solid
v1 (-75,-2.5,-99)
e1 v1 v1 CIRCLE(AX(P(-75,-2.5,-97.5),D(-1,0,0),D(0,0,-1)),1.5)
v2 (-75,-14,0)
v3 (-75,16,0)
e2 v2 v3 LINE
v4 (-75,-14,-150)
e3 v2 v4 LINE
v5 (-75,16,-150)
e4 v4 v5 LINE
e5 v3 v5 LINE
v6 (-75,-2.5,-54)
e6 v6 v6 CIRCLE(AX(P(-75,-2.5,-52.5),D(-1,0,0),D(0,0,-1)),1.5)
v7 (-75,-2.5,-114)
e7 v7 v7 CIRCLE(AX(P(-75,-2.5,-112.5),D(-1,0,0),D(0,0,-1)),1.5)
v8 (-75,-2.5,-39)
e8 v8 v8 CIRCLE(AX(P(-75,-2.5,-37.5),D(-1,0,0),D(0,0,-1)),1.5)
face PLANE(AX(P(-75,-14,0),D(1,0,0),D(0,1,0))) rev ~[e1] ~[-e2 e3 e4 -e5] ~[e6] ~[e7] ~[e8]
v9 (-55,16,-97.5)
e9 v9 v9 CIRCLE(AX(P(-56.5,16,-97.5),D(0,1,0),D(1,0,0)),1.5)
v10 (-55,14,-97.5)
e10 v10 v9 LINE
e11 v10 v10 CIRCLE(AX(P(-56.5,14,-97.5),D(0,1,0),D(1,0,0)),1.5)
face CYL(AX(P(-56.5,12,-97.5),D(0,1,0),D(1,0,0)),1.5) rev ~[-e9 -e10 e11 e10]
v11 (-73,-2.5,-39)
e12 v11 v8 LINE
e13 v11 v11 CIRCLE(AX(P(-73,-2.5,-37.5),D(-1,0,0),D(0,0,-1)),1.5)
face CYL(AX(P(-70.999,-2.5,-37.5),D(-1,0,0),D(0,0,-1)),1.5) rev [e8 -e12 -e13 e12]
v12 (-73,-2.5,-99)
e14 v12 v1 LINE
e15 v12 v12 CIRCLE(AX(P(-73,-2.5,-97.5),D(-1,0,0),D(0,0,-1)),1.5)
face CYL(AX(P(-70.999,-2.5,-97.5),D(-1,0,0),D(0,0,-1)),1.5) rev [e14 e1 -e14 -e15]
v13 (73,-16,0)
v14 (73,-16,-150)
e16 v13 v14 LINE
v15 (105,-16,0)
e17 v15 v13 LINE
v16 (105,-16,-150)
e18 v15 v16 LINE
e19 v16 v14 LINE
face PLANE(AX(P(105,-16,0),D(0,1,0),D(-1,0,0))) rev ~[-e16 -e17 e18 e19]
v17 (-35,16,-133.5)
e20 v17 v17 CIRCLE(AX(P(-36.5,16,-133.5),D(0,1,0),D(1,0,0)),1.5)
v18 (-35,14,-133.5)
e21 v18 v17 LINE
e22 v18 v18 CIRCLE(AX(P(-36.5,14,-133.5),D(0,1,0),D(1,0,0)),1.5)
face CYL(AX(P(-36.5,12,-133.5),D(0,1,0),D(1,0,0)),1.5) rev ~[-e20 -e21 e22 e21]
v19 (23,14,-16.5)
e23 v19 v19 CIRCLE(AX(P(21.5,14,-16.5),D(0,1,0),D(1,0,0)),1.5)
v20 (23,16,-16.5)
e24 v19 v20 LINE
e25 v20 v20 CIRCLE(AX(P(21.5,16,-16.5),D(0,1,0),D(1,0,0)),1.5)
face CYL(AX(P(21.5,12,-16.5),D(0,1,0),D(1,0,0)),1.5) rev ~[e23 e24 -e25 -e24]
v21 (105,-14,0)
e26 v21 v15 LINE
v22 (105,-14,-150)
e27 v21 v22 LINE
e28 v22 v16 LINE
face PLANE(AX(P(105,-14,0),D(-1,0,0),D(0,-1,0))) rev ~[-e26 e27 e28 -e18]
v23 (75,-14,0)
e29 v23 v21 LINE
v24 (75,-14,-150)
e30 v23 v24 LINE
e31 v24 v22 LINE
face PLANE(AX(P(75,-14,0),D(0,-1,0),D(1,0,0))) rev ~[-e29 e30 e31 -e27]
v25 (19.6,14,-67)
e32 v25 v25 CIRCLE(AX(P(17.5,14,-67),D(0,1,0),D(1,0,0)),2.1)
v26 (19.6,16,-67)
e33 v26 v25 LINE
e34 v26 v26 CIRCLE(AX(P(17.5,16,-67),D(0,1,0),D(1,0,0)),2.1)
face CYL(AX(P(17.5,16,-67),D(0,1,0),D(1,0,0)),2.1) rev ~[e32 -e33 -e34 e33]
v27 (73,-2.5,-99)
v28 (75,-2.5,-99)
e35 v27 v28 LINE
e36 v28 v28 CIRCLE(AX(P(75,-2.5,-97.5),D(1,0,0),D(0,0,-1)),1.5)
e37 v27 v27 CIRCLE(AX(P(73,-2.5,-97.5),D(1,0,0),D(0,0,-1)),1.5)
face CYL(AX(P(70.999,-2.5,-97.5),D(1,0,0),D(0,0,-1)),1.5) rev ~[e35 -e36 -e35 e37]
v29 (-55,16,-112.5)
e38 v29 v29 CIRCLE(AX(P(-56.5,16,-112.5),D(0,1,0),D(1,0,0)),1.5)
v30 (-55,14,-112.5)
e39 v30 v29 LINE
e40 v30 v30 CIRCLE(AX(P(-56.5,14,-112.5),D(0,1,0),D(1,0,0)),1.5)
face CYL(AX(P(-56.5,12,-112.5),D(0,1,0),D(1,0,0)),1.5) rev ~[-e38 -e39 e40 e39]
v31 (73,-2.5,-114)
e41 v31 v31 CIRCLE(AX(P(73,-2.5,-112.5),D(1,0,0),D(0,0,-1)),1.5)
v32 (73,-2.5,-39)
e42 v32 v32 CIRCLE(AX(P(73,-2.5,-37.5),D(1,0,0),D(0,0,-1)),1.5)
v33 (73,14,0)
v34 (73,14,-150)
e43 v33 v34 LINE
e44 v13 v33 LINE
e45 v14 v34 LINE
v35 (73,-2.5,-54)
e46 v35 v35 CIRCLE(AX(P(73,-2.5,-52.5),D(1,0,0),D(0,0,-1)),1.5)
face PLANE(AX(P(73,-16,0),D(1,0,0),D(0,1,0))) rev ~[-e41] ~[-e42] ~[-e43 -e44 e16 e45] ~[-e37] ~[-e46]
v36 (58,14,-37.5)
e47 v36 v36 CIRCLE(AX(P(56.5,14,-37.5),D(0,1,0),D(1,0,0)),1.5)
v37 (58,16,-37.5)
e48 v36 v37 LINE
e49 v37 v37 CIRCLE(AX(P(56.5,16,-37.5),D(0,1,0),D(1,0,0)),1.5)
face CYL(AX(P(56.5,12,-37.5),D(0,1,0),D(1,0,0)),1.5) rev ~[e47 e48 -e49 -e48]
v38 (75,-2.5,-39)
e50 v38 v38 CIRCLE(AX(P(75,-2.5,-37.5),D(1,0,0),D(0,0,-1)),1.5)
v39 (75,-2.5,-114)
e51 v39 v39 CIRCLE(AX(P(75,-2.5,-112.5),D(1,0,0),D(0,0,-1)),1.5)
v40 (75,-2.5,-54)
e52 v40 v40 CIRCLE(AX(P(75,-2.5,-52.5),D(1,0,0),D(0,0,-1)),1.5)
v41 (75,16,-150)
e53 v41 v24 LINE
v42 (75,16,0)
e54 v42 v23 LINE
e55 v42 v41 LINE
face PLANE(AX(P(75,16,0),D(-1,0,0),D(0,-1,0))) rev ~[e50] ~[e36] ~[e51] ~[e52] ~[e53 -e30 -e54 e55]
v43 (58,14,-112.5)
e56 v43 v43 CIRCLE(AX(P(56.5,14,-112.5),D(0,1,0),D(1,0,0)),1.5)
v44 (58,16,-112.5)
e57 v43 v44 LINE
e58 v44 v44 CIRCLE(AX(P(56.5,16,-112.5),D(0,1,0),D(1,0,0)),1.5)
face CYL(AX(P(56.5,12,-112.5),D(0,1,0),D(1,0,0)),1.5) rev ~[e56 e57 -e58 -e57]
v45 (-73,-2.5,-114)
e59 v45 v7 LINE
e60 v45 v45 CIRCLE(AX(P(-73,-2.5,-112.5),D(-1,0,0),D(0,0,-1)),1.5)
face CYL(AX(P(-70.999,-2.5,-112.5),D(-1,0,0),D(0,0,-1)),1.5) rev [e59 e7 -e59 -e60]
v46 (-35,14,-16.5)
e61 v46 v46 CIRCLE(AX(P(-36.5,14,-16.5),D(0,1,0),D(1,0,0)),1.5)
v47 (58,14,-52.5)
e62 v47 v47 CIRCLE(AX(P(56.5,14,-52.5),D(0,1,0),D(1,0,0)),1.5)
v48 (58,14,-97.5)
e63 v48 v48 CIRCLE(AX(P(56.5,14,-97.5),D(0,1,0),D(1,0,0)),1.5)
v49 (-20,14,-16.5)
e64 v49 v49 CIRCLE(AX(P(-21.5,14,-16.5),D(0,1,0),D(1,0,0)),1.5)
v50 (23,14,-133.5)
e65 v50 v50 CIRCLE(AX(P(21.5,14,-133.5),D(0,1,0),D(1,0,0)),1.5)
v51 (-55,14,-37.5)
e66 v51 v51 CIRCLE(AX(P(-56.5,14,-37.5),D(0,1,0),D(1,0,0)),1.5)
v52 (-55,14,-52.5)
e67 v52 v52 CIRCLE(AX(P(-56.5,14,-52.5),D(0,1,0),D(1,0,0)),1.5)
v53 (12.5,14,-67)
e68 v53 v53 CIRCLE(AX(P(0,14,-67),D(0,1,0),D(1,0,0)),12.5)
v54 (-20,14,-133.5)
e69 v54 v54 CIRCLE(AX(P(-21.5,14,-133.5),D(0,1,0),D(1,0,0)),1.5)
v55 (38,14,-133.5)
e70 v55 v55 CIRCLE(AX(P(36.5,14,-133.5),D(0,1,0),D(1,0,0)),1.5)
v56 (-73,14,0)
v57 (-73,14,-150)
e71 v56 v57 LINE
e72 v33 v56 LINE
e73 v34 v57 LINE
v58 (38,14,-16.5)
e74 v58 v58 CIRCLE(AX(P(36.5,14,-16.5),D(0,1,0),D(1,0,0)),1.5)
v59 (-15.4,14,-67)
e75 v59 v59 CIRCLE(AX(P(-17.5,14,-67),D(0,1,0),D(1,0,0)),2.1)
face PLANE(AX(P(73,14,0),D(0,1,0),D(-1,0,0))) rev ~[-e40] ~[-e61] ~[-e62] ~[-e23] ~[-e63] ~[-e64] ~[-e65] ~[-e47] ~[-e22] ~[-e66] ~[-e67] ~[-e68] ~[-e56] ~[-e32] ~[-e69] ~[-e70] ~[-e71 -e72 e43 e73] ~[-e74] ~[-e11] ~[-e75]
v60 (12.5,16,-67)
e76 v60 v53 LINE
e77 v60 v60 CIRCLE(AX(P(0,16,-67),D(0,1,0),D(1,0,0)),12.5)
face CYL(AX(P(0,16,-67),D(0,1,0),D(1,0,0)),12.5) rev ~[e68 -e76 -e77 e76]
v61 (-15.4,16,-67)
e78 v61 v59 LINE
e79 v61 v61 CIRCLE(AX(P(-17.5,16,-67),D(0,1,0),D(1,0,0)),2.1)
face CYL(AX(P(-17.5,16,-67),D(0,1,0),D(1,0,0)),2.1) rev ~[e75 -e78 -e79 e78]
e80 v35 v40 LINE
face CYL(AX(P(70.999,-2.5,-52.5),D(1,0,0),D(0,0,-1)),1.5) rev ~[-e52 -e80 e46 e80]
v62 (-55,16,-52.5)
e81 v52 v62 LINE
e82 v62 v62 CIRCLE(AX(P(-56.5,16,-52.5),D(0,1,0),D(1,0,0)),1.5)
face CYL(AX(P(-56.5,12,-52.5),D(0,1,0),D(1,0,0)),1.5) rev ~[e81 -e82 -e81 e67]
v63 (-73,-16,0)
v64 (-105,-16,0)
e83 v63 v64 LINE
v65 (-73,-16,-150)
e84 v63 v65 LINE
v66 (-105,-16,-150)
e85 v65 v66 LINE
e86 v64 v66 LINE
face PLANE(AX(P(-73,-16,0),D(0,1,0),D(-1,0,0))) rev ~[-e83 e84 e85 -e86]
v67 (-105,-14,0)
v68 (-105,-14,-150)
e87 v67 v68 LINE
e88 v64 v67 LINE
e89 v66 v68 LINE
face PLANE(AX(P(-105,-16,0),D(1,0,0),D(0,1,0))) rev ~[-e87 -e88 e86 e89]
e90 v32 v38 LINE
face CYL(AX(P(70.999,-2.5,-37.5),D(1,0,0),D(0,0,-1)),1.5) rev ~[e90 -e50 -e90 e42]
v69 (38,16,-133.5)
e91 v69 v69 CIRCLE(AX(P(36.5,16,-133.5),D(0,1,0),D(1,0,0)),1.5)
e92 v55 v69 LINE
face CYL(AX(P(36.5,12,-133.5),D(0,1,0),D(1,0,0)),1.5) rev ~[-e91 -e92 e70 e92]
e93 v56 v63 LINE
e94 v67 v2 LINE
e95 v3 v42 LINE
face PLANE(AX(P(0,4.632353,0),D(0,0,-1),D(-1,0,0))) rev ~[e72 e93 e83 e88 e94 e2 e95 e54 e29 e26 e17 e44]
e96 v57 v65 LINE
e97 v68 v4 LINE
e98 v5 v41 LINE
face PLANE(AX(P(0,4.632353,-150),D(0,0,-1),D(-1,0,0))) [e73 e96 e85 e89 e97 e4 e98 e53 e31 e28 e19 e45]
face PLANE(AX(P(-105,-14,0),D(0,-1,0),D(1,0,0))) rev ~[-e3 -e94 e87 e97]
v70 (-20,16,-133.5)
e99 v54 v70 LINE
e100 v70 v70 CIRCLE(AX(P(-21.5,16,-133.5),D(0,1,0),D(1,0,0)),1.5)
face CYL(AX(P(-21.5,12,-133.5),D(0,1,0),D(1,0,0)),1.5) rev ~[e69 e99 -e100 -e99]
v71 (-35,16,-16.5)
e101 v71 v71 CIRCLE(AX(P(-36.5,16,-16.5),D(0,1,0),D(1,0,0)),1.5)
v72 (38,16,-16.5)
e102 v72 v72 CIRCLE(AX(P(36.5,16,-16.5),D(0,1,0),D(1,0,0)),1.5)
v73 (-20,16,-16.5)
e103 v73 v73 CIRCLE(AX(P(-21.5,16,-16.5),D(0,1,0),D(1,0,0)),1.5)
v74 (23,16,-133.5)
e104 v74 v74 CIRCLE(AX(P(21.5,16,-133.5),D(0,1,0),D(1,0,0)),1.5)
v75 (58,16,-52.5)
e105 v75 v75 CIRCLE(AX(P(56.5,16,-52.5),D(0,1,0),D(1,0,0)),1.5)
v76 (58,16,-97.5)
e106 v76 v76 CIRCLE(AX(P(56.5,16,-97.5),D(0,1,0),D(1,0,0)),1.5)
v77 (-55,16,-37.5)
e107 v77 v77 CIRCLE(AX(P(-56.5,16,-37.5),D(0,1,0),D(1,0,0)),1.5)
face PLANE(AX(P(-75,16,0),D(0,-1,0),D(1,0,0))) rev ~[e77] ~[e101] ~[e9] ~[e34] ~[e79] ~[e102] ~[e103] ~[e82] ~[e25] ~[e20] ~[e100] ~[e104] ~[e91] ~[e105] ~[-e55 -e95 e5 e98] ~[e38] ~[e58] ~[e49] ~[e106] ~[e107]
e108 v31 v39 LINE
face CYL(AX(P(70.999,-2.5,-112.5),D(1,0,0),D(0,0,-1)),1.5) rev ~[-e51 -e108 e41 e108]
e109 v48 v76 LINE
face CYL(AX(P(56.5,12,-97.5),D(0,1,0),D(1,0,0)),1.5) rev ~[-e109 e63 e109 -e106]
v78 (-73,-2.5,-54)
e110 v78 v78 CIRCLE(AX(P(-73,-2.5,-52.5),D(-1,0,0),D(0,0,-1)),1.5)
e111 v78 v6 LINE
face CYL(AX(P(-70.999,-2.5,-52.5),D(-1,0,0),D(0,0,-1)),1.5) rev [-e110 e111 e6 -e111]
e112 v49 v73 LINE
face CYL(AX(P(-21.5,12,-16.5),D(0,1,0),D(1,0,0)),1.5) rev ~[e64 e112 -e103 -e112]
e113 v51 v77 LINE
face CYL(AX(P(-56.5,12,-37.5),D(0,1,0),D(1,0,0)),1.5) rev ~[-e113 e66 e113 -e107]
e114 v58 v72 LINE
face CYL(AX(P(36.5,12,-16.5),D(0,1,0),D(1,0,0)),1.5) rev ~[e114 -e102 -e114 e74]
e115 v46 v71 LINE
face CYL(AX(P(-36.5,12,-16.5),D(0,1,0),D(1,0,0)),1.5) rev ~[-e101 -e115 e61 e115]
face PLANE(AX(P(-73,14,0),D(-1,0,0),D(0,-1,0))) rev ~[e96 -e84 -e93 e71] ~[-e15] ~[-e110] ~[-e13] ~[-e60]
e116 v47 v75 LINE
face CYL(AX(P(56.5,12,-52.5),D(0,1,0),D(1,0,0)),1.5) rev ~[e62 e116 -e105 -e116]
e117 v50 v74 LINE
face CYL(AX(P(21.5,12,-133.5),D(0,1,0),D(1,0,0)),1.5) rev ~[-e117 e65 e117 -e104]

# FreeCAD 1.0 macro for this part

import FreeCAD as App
import Part
import Sketcher
Q = App.Units.Quantity

doc = App.newDocument("Part")
body = doc.addObject("PartDesign::Body", "Body")

# Sketch on XY plane
sketch1 = body.newObject("Sketcher::SketchObject", "Sketch")
sketch1.AttachmentSupport = (doc.getObject("XY_Plane"), [""])
sketch1.MapMode = "FlatFace"
sketch1.addGeometry([
    Part.LineSegment(App.Vector(75, 16, 0), App.Vector(-75, 16, 0)),  # 0
    Part.LineSegment(App.Vector(-75, 16, 0), App.Vector(-75, -14, 0)),  # 1
    Part.LineSegment(App.Vector(-75, -14, 0), App.Vector(-105, -14, 0)),  # 2
    Part.LineSegment(App.Vector(-105, -14, 0), App.Vector(-105, -16, 0)),  # 3
    Part.LineSegment(App.Vector(-105, -16, 0), App.Vector(-73, -16, 0)),  # 4
    Part.LineSegment(App.Vector(-73, -16, 0), App.Vector(-73, 14, 0)),  # 5
    Part.LineSegment(App.Vector(-73, 14, 0), App.Vector(73, 14, 0)),  # 6
    Part.LineSegment(App.Vector(73, 14, 0), App.Vector(73, -16, 0)),  # 7
    Part.LineSegment(App.Vector(73, -16, 0), App.Vector(105, -16, 0)),  # 8
    Part.LineSegment(App.Vector(105, -16, 0), App.Vector(105, -14, 0)),  # 9
    Part.LineSegment(App.Vector(105, -14, 0), App.Vector(75, -14, 0)),  # 10
    Part.LineSegment(App.Vector(75, -14, 0), App.Vector(75, 16, 0)),  # 11
], False)
sketch1.addConstraint([
    Sketcher.Constraint("Coincident", 0, 2, 1, 1),
    Sketcher.Constraint("Coincident", 1, 2, 2, 1),
    Sketcher.Constraint("Coincident", 2, 2, 3, 1),
    Sketcher.Constraint("Coincident", 3, 2, 4, 1),
    Sketcher.Constraint("Coincident", 4, 2, 5, 1),
    Sketcher.Constraint("Coincident", 5, 2, 6, 1),
    Sketcher.Constraint("Coincident", 6, 2, 7, 1),
    Sketcher.Constraint("Coincident", 7, 2, 8, 1),
    Sketcher.Constraint("Coincident", 8, 2, 9, 1),
    Sketcher.Constraint("Coincident", 9, 2, 10, 1),
    Sketcher.Constraint("Coincident", 10, 2, 11, 1),
    Sketcher.Constraint("Coincident", 11, 2, 0, 1),
    Sketcher.Constraint("Horizontal", 0),
    Sketcher.Constraint("Vertical", 1),
    Sketcher.Constraint("Horizontal", 2),
    Sketcher.Constraint("Vertical", 3),
    Sketcher.Constraint("Horizontal", 4),
    Sketcher.Constraint("Vertical", 5),
    Sketcher.Constraint("Horizontal", 6),
    Sketcher.Constraint("Vertical", 7),
    Sketcher.Constraint("Horizontal", 8),
    Sketcher.Constraint("Vertical", 9),
    Sketcher.Constraint("Horizontal", 10),
    Sketcher.Constraint("Vertical", 11),
    Sketcher.Constraint("Symmetric", 4, 2, 7, 2, -2),
    Sketcher.Constraint("Symmetric", 2, 2, 9, 2, -2),
    Sketcher.Constraint("Equal", 2, 10),
    Sketcher.Constraint("Equal", 10, 1),
    Sketcher.Constraint("Equal", 1, 5),
    Sketcher.Constraint("DistanceX", 0, 2, 0, 1, Q("150 mm")),
    Sketcher.Constraint("DistanceX", 2, 2, 2, 1, Q("30 mm")),
    Sketcher.Constraint("DistanceX", 4, 1, 4, 2, Q("32 mm")),
    Sketcher.Constraint("DistanceY", 3, 2, 3, 1, Q("2 mm")),
    Sketcher.Constraint("DistanceY", -1, 1, 0, 2, Q("16 mm")),
])
pad1 = body.newObject("PartDesign::Pad", "Pad")
pad1.Profile = sketch1
pad1.Length = 150
pad1.Reversed = True

# Sketch on XZ plane
sketch2 = body.newObject("Sketcher::SketchObject", "Sketch001")
sketch2.AttachmentSupport = (doc.getObject("XZ_Plane"), [""])
sketch2.MapMode = "FlatFace"
sketch2.AttachmentOffset = App.Placement(App.Vector(0, 0, -16), App.Rotation())
sketch2.addGeometry(Part.Circle(App.Vector(0, -67, 0), App.Vector(0, 0, 1), 12), False)
sketch2.addConstraint([
    Sketcher.Constraint("PointOnObject", 0, 3, -2),
    Sketcher.Constraint("Diameter", 0, Q("25 mm")),
    Sketcher.Constraint("DistanceY", 0, 3, -1, 1, Q("67 mm")),
])
pocket1 = body.newObject("PartDesign::Pocket", "Pocket")
pocket1.Profile = sketch2
pocket1.Type = "UpToFirst"
pocket1.Reversed = True

# Sketch on XZ plane
sketch3 = body.newObject("Sketcher::SketchObject", "Sketch002")
sketch3.AttachmentSupport = (doc.getObject("XZ_Plane"), [""])
sketch3.MapMode = "FlatFace"
sketch3.AttachmentOffset = App.Placement(App.Vector(0, 0, -16), App.Rotation())
sketch3.addGeometry(Part.Circle(App.Vector(17.5, -67, 0), App.Vector(0, 0, 1), 2.1), False)
sketch3.addConstraint([
    Sketcher.Constraint("Diameter", 0, Q("4.2 mm")),
    Sketcher.Constraint("DistanceY", 0, 3, -1, 1, Q("67 mm")),
    Sketcher.Constraint("DistanceX", -1, 1, 0, 3, Q("17.5 mm")),
])
pocket2 = body.newObject("PartDesign::Pocket", "Pocket001")
pocket2.Profile = sketch3
pocket2.Type = "UpToFirst"
pocket2.Reversed = True

# Sketch on XZ plane
sketch4 = body.newObject("Sketcher::SketchObject", "Sketch003")
sketch4.AttachmentSupport = (doc.getObject("XZ_Plane"), [""])
sketch4.MapMode = "FlatFace"
sketch4.AttachmentOffset = App.Placement(App.Vector(0, 0, -16), App.Rotation())
sketch4.addGeometry(Part.Circle(App.Vector(-17.5, -67, 0), App.Vector(0, 0, 1), 2.1), False)
sketch4.addConstraint([
    Sketcher.Constraint("Diameter", 0, Q("4.2 mm")),
    Sketcher.Constraint("DistanceY", 0, 3, -1, 1, Q("67 mm")),
    Sketcher.Constraint("DistanceX", 0, 3, -1, 1, Q("17.5 mm")),
])
pocket3 = body.newObject("PartDesign::Pocket", "Pocket002")
pocket3.Profile = sketch4
pocket3.Type = "UpToFirst"
pocket3.Reversed = True

# Sketch on XZ plane
sketch5 = body.newObject("Sketcher::SketchObject", "Sketch004")
sketch5.AttachmentSupport = (doc.getObject("XZ_Plane"), [""])
sketch5.MapMode = "FlatFace"
sketch5.AttachmentOffset = App.Placement(App.Vector(0, 0, -14), App.Rotation())
sketch5.addGeometry([
    Part.Circle(App.Vector(-56.5, -97.5, 0), App.Vector(0, 0, 1), 1.5),  # 0
    Part.Circle(App.Vector(-56.5, -112.5, 0), App.Vector(0, 0, 1), 1.5),  # 1
    Part.Circle(App.Vector(-56.5, -52.5, 0), App.Vector(0, 0, 1), 1.5),  # 2
    Part.Circle(App.Vector(-56.5, -37.5, 0), App.Vector(0, 0, 1), 1.5),  # 3
    Part.Circle(App.Vector(-36.5, -16.5, 0), App.Vector(0, 0, 1), 1.5),  # 4
    Part.Circle(App.Vector(-21.5, -16.5, 0), App.Vector(0, 0, 1), 1.5),  # 5
    Part.Circle(App.Vector(21.5, -16.5, 0), App.Vector(0, 0, 1), 1.5),  # 6
    Part.Circle(App.Vector(36.5, -16.5, 0), App.Vector(0, 0, 1), 1.5),  # 7
    Part.Circle(App.Vector(56.5, -37.5, 0), App.Vector(0, 0, 1), 1.5),  # 8
    Part.Circle(App.Vector(56.5, -52.5, 0), App.Vector(0, 0, 1), 1.5),  # 9
    Part.Circle(App.Vector(56.5, -97.5, 0), App.Vector(0, 0, 1), 1.5),  # 10
    Part.Circle(App.Vector(56.5, -112.5, 0), App.Vector(0, 0, 1), 1.5),  # 11
    Part.Circle(App.Vector(36.5, -133.5, 0), App.Vector(0, 0, 1), 1.5),  # 12
    Part.Circle(App.Vector(21.5, -133.5, 0), App.Vector(0, 0, 1), 1.5),  # 13
    Part.Circle(App.Vector(-36.5, -133.5, 0), App.Vector(0, 0, 1), 1.5),  # 14
    Part.Circle(App.Vector(-21.5, -133.5, 0), App.Vector(0, 0, 1), 1.5),  # 15
], False)
sketch5.addConstraint([
    Sketcher.Constraint("Equal", 0, 1),
    Sketcher.Constraint("Equal", 1, 2),
    Sketcher.Constraint("Equal", 2, 3),
    Sketcher.Constraint("Equal", 3, 4),
    Sketcher.Constraint("Equal", 4, 5),
    Sketcher.Constraint("Equal", 5, 6),
    Sketcher.Constraint("Equal", 6, 7),
    Sketcher.Constraint("Equal", 7, 8),
    Sketcher.Constraint("Equal", 8, 9),
    Sketcher.Constraint("Equal", 9, 10),
    Sketcher.Constraint("Equal", 10, 11),
    Sketcher.Constraint("Equal", 11, 12),
    Sketcher.Constraint("Equal", 12, 13),
    Sketcher.Constraint("Equal", 13, 14),
    Sketcher.Constraint("Equal", 14, 15),
    Sketcher.Constraint("Symmetric", 5, 3, 6, 3, -2),
    Sketcher.Constraint("Symmetric", 4, 3, 7, 3, -2),
    Sketcher.Constraint("Symmetric", 3, 3, 8, 3, -2),
    Sketcher.Constraint("Symmetric", 2, 3, 9, 3, -2),
    Sketcher.Constraint("Symmetric", 0, 3, 10, 3, -2),
    Sketcher.Constraint("Symmetric", 1, 3, 11, 3, -2),
    Sketcher.Constraint("Symmetric", 12, 3, 14, 3, -2),
    Sketcher.Constraint("Symmetric", 13, 3, 15, 3, -2),
    Sketcher.Constraint("Horizontal", 4, 3, 5, 3),
    Sketcher.Constraint("Horizontal", 12, 3, 13, 3),
    Sketcher.Constraint("Vertical", 0, 3, 1, 3),
    Sketcher.Constraint("Vertical", 1, 3, 2, 3),
    Sketcher.Constraint("Vertical", 2, 3, 3, 3),
    Sketcher.Constraint("Vertical", 7, 3, 12, 3),
    Sketcher.Constraint("Vertical", 6, 3, 13, 3),
    Sketcher.Constraint("Diameter", 0, Q("3 mm")),
    Sketcher.Constraint("DistanceY", 1, 3, 0, 3, Q("15 mm")),
    Sketcher.Constraint("DistanceY", 0, 3, 2, 3, Q("45 mm")),
    Sketcher.Constraint("DistanceY", 2, 3, 3, 3, Q("15 mm")),
    Sketcher.Constraint("DistanceX", 3, 3, 4, 3, Q("20 mm")),
    Sketcher.Constraint("DistanceY", 3, 3, 4, 3, Q("21 mm")),
    Sketcher.Constraint("DistanceX", 4, 3, 5, 3, Q("15 mm")),
    Sketcher.Constraint("DistanceX", 5, 3, 6, 3, Q("43 mm")),
    Sketcher.Constraint("DistanceY", 12, 3, 11, 3, Q("21 mm")),
    Sketcher.Constraint("DistanceY", 0, 3, -1, 1, Q("97.5 mm")),
])
doc.recompute()
hole = body.newObject("PartDesign::Hole", "Hole")
hole.Profile = sketch5
hole.ThreadType = "None"
hole.Diameter = 3
hole.DepthType = "Dimension"
hole.Depth = 2
hole.DrillPoint = "Flat"

# Sketch on YZ plane
sketch6 = body.newObject("Sketcher::SketchObject", "Sketch005")
sketch6.AttachmentSupport = (doc.getObject("YZ_Plane"), [""])
sketch6.MapMode = "FlatFace"
sketch6.AttachmentOffset = App.Placement(App.Vector(0, 0, 73), App.Rotation())
sketch6.addGeometry([
    Part.Circle(App.Vector(-2.5, -112.5, 0), App.Vector(0, 0, 1), 1.5),
    Part.Circle(App.Vector(-2.5, -97.5, 0), App.Vector(0, 0, 1), 1.5),
    Part.Circle(App.Vector(-2.5, -52.5, 0), App.Vector(0, 0, 1), 1.5),
    Part.Circle(App.Vector(-2.5, -37.5, 0), App.Vector(0, 0, 1), 1.5),
], False)
sketch6.addConstraint([
    Sketcher.Constraint("Equal", 0, 1),
    Sketcher.Constraint("Equal", 1, 2),
    Sketcher.Constraint("Equal", 2, 3),
    Sketcher.Constraint("Vertical", 0, 3, 1, 3),
    Sketcher.Constraint("Vertical", 1, 3, 2, 3),
    Sketcher.Constraint("Vertical", 2, 3, 3, 3),
    Sketcher.Constraint("Diameter", 0, Q("3 mm")),
    Sketcher.Constraint("DistanceY", 0, 3, 1, 3, Q("15 mm")),
    Sketcher.Constraint("DistanceY", 1, 3, 2, 3, Q("45 mm")),
    Sketcher.Constraint("DistanceY", 2, 3, 3, 3, Q("15 mm")),
    Sketcher.Constraint("DistanceX", 0, 3, -1, 1, Q("2.5 mm")),
    Sketcher.Constraint("DistanceY", 0, 3, -1, 1, Q("112.5 mm")),
])
doc.recompute()
hole2 = body.newObject("PartDesign::Hole", "Hole001")
hole2.Profile = sketch6
hole2.ThreadType = "None"
hole2.Diameter = 3
hole2.DepthType = "Dimension"
hole2.Depth = 2.001
hole2.DrillPoint = "Flat"
hole2.Reversed = True
doc.recompute()

mirrored = body.newObject("PartDesign::Mirrored", "Mirrored")
mirrored.Originals = [hole2]
mirrored.MirrorPlane = (doc.getObject("YZ_Plane"), [""])
body.Tip = mirrored

doc.recompute()
